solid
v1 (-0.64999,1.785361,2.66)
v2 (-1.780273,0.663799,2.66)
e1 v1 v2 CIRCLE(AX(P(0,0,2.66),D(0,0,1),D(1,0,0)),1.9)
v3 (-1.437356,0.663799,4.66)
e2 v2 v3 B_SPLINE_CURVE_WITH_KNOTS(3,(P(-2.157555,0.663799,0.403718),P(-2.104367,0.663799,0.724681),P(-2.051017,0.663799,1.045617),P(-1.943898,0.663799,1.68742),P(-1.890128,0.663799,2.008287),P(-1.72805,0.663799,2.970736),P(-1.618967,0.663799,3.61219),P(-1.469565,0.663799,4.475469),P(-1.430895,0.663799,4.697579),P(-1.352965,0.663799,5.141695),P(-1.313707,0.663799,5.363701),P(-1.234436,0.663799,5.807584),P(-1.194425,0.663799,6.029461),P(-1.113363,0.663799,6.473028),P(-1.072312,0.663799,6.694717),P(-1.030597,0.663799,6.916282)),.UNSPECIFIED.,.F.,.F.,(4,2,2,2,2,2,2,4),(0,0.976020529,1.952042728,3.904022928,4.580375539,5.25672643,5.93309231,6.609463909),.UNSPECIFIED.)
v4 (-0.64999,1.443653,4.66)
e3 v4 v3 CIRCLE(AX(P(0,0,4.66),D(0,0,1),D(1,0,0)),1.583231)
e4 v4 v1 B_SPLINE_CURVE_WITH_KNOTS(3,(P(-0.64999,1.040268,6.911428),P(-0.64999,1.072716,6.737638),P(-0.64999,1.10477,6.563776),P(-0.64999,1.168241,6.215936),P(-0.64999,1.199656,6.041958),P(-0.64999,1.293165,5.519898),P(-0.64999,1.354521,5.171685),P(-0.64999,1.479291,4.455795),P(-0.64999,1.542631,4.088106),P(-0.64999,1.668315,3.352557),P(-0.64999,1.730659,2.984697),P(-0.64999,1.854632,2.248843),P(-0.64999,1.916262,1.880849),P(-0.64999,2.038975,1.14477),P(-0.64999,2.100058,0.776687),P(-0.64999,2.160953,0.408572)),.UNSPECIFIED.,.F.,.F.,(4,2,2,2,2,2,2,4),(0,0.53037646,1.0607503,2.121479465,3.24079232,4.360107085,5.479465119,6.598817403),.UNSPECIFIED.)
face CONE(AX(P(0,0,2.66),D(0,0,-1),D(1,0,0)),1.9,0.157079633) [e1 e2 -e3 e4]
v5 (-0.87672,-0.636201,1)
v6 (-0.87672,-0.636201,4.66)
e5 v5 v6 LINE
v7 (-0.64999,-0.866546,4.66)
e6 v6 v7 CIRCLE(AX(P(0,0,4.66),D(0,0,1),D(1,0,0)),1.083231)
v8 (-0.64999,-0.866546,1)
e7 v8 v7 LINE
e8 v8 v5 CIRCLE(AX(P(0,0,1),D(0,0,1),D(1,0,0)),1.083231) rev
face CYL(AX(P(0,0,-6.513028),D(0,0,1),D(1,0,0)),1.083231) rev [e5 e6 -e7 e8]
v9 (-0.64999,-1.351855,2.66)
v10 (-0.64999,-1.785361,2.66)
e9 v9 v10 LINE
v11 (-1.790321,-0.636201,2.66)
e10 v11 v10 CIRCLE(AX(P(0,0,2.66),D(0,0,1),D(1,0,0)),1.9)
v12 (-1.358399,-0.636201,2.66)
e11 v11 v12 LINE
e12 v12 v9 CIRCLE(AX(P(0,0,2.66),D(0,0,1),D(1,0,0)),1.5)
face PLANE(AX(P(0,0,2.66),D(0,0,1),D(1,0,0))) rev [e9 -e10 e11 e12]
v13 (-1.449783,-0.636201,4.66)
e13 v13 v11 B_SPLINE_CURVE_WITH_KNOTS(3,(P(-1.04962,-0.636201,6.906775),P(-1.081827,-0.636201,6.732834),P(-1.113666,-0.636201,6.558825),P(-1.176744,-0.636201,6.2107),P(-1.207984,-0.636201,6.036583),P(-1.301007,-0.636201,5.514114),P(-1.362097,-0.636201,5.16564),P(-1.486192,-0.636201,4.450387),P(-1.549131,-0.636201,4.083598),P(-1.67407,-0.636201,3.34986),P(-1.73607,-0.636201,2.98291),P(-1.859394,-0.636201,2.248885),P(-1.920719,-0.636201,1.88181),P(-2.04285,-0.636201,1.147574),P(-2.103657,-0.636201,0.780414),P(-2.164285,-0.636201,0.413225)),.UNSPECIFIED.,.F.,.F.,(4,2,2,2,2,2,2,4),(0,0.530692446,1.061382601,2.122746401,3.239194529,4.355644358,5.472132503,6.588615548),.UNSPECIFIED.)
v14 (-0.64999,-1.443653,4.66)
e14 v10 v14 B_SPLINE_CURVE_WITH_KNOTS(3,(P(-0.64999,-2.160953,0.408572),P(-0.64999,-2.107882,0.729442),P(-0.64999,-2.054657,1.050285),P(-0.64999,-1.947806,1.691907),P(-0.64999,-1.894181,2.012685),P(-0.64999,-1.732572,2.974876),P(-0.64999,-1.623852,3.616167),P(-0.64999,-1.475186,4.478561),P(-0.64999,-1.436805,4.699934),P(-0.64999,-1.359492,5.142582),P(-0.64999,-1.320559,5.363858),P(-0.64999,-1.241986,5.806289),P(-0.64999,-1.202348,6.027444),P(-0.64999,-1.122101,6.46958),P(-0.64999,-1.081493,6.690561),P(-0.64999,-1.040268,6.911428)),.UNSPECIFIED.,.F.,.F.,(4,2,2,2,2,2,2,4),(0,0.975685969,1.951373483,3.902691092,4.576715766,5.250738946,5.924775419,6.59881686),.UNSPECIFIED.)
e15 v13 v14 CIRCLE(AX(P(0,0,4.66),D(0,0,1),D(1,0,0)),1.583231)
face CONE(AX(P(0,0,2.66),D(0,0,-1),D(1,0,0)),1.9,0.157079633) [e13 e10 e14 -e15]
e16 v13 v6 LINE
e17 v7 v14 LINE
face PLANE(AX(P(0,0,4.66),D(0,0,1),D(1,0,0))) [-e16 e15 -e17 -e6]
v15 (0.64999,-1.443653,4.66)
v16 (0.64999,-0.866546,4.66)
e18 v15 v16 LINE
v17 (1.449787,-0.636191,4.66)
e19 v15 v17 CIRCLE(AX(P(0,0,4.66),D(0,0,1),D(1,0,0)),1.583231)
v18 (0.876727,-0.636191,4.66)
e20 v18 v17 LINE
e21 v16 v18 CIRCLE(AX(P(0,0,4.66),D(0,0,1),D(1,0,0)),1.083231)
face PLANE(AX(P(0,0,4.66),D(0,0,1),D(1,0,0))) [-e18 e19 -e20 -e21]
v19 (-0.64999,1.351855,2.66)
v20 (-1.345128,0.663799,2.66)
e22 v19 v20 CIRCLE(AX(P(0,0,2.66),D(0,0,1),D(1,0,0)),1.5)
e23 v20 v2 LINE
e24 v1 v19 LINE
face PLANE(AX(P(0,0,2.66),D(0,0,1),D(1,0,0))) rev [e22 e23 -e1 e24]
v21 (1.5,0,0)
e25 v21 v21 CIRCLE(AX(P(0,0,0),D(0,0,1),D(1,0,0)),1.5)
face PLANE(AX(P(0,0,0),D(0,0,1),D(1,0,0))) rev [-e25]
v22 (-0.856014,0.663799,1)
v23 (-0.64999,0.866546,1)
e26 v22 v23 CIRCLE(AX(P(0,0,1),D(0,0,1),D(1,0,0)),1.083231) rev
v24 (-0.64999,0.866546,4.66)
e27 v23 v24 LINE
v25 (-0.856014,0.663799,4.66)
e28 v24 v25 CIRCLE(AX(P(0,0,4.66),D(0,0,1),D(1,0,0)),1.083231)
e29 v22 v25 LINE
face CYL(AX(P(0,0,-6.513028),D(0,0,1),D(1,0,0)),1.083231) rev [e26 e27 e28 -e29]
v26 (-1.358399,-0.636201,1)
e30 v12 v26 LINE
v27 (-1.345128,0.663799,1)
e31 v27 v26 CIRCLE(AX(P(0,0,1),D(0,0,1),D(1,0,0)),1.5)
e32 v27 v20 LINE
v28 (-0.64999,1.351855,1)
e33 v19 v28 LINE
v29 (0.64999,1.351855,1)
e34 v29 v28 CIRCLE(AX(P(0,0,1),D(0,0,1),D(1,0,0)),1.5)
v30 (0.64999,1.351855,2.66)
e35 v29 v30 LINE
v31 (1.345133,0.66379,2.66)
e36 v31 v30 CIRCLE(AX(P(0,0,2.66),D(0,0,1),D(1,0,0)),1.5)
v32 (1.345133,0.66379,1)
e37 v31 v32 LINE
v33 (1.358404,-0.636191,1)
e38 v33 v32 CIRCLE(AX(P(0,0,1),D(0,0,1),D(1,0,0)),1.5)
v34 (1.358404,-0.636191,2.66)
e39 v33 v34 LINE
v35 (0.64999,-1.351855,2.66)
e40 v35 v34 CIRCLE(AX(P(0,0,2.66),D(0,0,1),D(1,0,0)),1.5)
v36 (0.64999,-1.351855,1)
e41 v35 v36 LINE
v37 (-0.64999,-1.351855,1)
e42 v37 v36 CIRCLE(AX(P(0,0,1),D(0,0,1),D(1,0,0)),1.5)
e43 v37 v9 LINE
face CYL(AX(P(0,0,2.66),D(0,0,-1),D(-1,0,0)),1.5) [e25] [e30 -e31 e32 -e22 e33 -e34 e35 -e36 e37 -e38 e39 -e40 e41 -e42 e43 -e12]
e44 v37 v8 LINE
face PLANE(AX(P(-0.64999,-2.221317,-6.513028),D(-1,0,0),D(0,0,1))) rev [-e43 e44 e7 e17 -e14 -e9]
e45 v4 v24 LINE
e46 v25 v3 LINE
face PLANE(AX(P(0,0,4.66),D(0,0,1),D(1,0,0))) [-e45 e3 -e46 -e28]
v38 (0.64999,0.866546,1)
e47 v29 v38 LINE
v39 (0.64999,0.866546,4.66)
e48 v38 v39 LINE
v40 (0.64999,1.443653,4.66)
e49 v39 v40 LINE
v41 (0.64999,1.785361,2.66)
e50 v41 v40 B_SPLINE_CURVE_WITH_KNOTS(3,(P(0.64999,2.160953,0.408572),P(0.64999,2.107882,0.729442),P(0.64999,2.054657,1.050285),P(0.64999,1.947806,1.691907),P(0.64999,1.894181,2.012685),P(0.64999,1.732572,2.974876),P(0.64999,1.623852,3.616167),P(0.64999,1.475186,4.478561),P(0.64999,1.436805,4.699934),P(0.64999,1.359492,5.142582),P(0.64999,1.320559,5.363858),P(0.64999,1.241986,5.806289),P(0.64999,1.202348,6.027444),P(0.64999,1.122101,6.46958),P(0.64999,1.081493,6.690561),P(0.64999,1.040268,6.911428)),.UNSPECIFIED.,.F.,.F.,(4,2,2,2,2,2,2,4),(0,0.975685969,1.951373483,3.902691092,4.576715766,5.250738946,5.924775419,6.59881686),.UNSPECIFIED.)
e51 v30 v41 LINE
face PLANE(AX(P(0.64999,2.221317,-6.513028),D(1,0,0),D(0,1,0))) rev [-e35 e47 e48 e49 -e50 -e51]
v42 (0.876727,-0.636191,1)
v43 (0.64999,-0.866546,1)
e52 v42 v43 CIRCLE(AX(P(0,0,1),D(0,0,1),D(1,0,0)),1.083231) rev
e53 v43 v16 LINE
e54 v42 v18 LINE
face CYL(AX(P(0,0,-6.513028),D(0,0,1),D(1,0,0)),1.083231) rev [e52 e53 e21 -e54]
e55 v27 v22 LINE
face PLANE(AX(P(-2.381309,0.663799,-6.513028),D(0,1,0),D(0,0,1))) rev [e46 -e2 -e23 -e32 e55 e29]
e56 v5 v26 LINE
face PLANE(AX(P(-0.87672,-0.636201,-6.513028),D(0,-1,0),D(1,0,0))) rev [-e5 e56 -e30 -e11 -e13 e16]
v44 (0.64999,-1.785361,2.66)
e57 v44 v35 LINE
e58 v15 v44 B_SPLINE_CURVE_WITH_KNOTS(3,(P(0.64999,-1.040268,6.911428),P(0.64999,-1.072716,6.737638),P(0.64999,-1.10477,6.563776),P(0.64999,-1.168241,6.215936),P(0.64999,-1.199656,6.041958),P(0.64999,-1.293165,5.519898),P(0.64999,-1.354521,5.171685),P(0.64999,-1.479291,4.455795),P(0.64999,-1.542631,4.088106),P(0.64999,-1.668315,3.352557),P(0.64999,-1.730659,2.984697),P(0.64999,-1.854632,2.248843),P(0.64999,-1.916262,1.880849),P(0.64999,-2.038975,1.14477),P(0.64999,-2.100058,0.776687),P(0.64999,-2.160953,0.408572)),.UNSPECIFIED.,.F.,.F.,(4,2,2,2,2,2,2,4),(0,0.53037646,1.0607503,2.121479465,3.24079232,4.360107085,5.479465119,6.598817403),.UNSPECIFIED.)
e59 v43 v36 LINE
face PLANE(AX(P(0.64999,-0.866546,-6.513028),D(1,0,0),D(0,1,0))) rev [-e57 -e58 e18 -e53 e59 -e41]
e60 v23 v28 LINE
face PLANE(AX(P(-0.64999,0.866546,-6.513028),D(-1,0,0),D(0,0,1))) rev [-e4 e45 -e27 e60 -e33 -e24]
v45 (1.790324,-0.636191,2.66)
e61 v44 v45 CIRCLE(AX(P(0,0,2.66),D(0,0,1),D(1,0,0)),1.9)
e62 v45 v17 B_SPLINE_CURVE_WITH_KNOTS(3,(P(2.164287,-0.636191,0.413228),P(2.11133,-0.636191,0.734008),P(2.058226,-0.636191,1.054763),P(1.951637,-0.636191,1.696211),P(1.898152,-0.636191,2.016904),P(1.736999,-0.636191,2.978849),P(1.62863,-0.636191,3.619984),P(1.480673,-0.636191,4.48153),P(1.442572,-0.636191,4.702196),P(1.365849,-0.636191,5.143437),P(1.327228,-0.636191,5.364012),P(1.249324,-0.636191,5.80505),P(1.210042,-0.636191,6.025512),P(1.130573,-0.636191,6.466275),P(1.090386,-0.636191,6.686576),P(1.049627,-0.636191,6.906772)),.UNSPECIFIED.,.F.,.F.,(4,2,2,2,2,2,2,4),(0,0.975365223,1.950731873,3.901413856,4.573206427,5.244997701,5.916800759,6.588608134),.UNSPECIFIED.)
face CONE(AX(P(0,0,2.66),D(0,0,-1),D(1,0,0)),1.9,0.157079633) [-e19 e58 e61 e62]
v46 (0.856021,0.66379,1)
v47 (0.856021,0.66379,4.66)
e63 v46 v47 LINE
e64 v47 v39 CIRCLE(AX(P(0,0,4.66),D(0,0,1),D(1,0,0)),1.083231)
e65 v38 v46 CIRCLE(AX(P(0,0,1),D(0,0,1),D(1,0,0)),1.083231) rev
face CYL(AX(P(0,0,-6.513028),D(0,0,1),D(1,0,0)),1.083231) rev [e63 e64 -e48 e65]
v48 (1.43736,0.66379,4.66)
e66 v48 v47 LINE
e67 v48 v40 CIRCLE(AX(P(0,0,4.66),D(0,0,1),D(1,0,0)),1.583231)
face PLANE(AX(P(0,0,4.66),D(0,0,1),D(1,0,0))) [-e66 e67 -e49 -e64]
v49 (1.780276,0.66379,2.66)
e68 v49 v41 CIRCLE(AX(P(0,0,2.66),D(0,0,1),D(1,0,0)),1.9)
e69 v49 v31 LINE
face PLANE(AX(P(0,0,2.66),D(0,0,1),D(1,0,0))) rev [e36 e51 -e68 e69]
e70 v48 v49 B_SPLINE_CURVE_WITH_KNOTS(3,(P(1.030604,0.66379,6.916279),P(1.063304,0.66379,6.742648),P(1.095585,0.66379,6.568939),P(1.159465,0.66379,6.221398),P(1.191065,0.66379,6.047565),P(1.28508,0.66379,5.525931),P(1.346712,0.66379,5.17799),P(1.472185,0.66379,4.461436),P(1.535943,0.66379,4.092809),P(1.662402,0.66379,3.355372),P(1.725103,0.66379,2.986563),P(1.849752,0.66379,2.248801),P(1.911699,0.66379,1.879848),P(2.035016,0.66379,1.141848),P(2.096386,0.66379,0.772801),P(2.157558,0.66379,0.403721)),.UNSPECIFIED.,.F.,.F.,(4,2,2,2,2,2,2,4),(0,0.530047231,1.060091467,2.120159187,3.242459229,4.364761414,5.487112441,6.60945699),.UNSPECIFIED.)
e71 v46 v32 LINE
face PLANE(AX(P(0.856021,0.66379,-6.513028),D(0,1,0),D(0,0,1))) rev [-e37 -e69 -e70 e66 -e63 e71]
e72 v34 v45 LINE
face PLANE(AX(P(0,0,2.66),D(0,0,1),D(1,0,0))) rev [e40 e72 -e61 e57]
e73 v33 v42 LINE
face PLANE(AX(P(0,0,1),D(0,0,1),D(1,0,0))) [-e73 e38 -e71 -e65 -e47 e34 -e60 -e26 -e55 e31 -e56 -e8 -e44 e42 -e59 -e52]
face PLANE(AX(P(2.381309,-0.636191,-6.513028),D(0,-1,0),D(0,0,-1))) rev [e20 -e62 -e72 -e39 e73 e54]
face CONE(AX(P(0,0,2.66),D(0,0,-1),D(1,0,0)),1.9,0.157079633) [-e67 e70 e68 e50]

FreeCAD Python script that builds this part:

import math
import FreeCAD as App
import Part
import Sketcher
from FreeCAD import Vector
Q = App.Units.Quantity

doc = App.newDocument("Part")
body = doc.addObject("PartDesign::Body", "Body")

# Sketch on XY plane
sketch1 = body.newObject("Sketcher::SketchObject", "Sketch")
sketch1.AttachmentSupport = (doc.getObject("XY_Plane"), [""])
sketch1.MapMode = "FlatFace"
sketch1.addGeometry(Part.Circle(Vector(0, 0, 0), Vector(0, 0, 1), 1.5), False)
sketch1.addConstraint(Sketcher.Constraint("Coincident", 0, 3, -1, 1))
sketch1.addConstraint(Sketcher.Constraint("Diameter", 0, Q("3 mm")))
pad1 = body.newObject("PartDesign::Pad", "Pad")
pad1.Profile = sketch1
pad1.Length = 2.66

# Sketch on XY plane
sketch2 = body.newObject("Sketcher::SketchObject", "Sketch001")
sketch2.AttachmentSupport = (doc.getObject("XY_Plane"), [""])
sketch2.MapMode = "FlatFace"
sketch2.AttachmentOffset = App.Placement(Vector(0, 0, 2.66), App.Rotation())
sketch2.addGeometry(Part.Circle(Vector(0, 0, 0), Vector(0, 0, 1), 1.9), False)
sketch2.addConstraint(Sketcher.Constraint("Coincident", 0, 3, -1, 1))
sketch2.addConstraint(Sketcher.Constraint("Diameter", 0, Q("3.8 mm")))
pad2 = body.newObject("PartDesign::Pad", "Pad001")
pad2.Profile = sketch2
pad2.Length = 2
pad2.TaperAngle = -9

# Sketch on XY plane
sketch3 = body.newObject("Sketcher::SketchObject", "Sketch002")
sketch3.AttachmentSupport = (doc.getObject("XY_Plane"), [""])
sketch3.MapMode = "FlatFace"
sketch3.AttachmentOffset = App.Placement(Vector(0, 0, 4.66), App.Rotation())
sketch3.addGeometry(Part.LineSegment(Vector(0.64999, 2.221317, 0), Vector(-0.64999, 2.221317, 0)), False)
sketch3.addGeometry(Part.LineSegment(Vector(-0.64999, 2.221317, 0), Vector(-0.64999, 0.866546, 0)), False)
sketch3.addGeometry(Part.ArcOfCircle(Part.Circle(Vector(0, 0, 0), Vector(0, 0, 1), 1.083231), math.radians(126.873321), math.radians(142.208067)), False)
sketch3.addGeometry(Part.LineSegment(Vector(-0.856014, 0.663799, 0), Vector(-2.381309, 0.663799, 0)), False)
sketch3.addGeometry(Part.LineSegment(Vector(-2.381309, 0.663799, 0), Vector(-2.381309, -0.636201, 0)), False)
sketch3.addGeometry(Part.LineSegment(Vector(-2.381309, -0.636201, 0), Vector(-0.87672, -0.636201, 0)), False)
sketch3.addGeometry(Part.ArcOfCircle(Part.Circle(Vector(0, 0, 0), Vector(0, 0, 1), 1.083231), math.radians(-144.033125), math.radians(-126.873321)), False)
sketch3.addGeometry(Part.LineSegment(Vector(-0.64999, -0.866546, 0), Vector(-0.64999, -2.221317, 0)), False)
sketch3.addGeometry(Part.LineSegment(Vector(-0.64999, -2.221317, 0), Vector(0.64999, -2.221317, 0)), False)
sketch3.addGeometry(Part.LineSegment(Vector(0.64999, -2.221317, 0), Vector(0.64999, -0.866546, 0)), False)
sketch3.addGeometry(Part.ArcOfCircle(Part.Circle(Vector(0, 0, 0), Vector(0, 0, 1), 1.083231), math.radians(-53.126679), math.radians(-35.96625)), False)
sketch3.addGeometry(Part.LineSegment(Vector(0.876727, -0.636191, 0), Vector(2.381309, -0.636191, 0)), False)
sketch3.addGeometry(Part.LineSegment(Vector(2.381309, -0.636191, 0), Vector(2.381309, 0.66379, 0)), False)
sketch3.addGeometry(Part.LineSegment(Vector(2.381309, 0.66379, 0), Vector(0.856021, 0.66379, 0)), False)
sketch3.addGeometry(Part.ArcOfCircle(Part.Circle(Vector(0, 0, 0), Vector(0, 0, 1), 1.083231), math.radians(37.791293), math.radians(53.126679)), False)
sketch3.addGeometry(Part.LineSegment(Vector(0.64999, 0.866546, 0), Vector(0.64999, 2.221317, 0)), False)
sketch3.addConstraint(Sketcher.Constraint("Coincident", 0, 2, 1, 1))
sketch3.addConstraint(Sketcher.Constraint("Coincident", 1, 2, 2, 1))
sketch3.addConstraint(Sketcher.Constraint("Coincident", 2, 2, 3, 1))
sketch3.addConstraint(Sketcher.Constraint("Coincident", 3, 2, 4, 1))
sketch3.addConstraint(Sketcher.Constraint("Coincident", 4, 2, 5, 1))
sketch3.addConstraint(Sketcher.Constraint("Coincident", 5, 2, 6, 1))
sketch3.addConstraint(Sketcher.Constraint("Coincident", 6, 2, 7, 1))
sketch3.addConstraint(Sketcher.Constraint("Coincident", 7, 2, 8, 1))
sketch3.addConstraint(Sketcher.Constraint("Coincident", 8, 2, 9, 1))
sketch3.addConstraint(Sketcher.Constraint("Coincident", 9, 2, 10, 1))
sketch3.addConstraint(Sketcher.Constraint("Coincident", 10, 2, 11, 1))
sketch3.addConstraint(Sketcher.Constraint("Coincident", 11, 2, 12, 1))
sketch3.addConstraint(Sketcher.Constraint("Coincident", 12, 2, 13, 1))
sketch3.addConstraint(Sketcher.Constraint("Coincident", 13, 2, 14, 1))
sketch3.addConstraint(Sketcher.Constraint("Coincident", 14, 2, 15, 1))
sketch3.addConstraint(Sketcher.Constraint("Coincident", 15, 2, 0, 1))
sketch3.addConstraint(Sketcher.Constraint("Horizontal", 0))
sketch3.addConstraint(Sketcher.Constraint("Vertical", 1))
sketch3.addConstraint(Sketcher.Constraint("Horizontal", 3))
sketch3.addConstraint(Sketcher.Constraint("Vertical", 4))
sketch3.addConstraint(Sketcher.Constraint("Horizontal", 5))
sketch3.addConstraint(Sketcher.Constraint("Vertical", 7))
sketch3.addConstraint(Sketcher.Constraint("Horizontal", 8))
sketch3.addConstraint(Sketcher.Constraint("Vertical", 9))
sketch3.addConstraint(Sketcher.Constraint("Horizontal", 11))
sketch3.addConstraint(Sketcher.Constraint("Vertical", 12))
sketch3.addConstraint(Sketcher.Constraint("Horizontal", 13))
sketch3.addConstraint(Sketcher.Constraint("Vertical", 15))
sketch3.addConstraint(Sketcher.Constraint("Coincident", 2, 3, -1, 1))
sketch3.addConstraint(Sketcher.Constraint("Coincident", 6, 3, -1, 1))
sketch3.addConstraint(Sketcher.Constraint("Coincident", 10, 3, -1, 1))
sketch3.addConstraint(Sketcher.Constraint("Coincident", 14, 3, -1, 1))
sketch3.addConstraint(Sketcher.Constraint("Equal", 2, 6))
sketch3.addConstraint(Sketcher.Constraint("Equal", 6, 10))
sketch3.addConstraint(Sketcher.Constraint("Equal", 10, 14))
sketch3.addConstraint(Sketcher.Constraint("Symmetric", 0, 2, 8, 2, -1, 1))
sketch3.addConstraint(Sketcher.Constraint("Symmetric", 4, 2, 11, 2, -2))
sketch3.addConstraint(Sketcher.Constraint("Horizontal", 6, 2, 9, 2))
sketch3.addConstraint(Sketcher.Constraint("Horizontal", 1, 2, 14, 2))
sketch3.addConstraint(Sketcher.Constraint("Equal", 8, 12))
sketch3.addConstraint(Sketcher.Constraint("DistanceY", 4, 2, 4, 1, Q("1.3 mm")))
sketch3.addConstraint(Sketcher.Constraint("Radius", 2, Q("1.083231 mm")))
sketch3.addConstraint(Sketcher.Constraint("DistanceX", 0, 2, 0, 1, Q("1.299981 mm")))
sketch3.addConstraint(Sketcher.Constraint("DistanceX", 5, 1, 5, 2, Q("1.504589 mm")))
sketch3.addConstraint(Sketcher.Constraint("DistanceX", 13, 2, 13, 1, Q("1.525288 mm")))
sketch3.addConstraint(Sketcher.Constraint("DistanceY", 1, 2, 1, 1, Q("1.354771 mm")))
pocket1 = body.newObject("PartDesign::Pocket", "Pocket")
pocket1.Profile = sketch3
pocket1.Length = 3.66

doc.recompute()
